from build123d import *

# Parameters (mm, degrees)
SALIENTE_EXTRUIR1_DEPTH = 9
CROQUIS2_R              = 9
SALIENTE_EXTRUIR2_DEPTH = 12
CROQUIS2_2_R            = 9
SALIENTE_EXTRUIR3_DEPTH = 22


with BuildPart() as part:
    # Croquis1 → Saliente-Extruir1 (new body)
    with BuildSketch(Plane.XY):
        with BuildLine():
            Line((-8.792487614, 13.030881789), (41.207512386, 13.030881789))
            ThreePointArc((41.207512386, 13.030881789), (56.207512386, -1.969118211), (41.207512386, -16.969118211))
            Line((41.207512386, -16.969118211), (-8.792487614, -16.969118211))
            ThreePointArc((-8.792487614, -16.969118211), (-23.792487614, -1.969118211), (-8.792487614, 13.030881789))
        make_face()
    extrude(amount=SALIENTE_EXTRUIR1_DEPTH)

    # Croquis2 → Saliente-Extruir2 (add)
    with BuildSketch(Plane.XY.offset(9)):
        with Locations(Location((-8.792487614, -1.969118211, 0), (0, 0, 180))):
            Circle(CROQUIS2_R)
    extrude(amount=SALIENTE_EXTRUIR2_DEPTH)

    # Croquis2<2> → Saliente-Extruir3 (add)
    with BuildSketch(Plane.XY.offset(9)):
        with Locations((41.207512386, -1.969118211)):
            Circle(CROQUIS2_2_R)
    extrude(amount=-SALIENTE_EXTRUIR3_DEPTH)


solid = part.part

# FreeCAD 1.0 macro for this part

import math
import FreeCAD as App
import Part
import Sketcher

V = App.Vector

doc = App.newDocument("Part")
body = doc.addObject("PartDesign::Body", "Body")

sketch1 = body.newObject("Sketcher::SketchObject", "Sketch")
sketch1.AttachmentSupport = (doc.getObject("XY_Plane"), [""])
sketch1.MapMode = "FlatFace"
sketch1.addGeometry(Part.LineSegment(V(41.207512, 13.030882, 0), V(-8.792488, 13.030882, 0)), False)
sketch1.addGeometry(Part.ArcOfCircle(Part.Circle(V(-8.792488, -1.969118, 0), V(0, 0, 1), 15), math.radians(90), math.radians(270)), False)
sketch1.addGeometry(Part.LineSegment(V(-8.792488, -16.969118, 0), V(41.207512, -16.969118, 0)), False)
sketch1.addGeometry(Part.ArcOfCircle(Part.Circle(V(41.207512, -1.969118, 0), V(0, 0, 1), 15), math.radians(-90), math.radians(90)), False)
sketch1.addConstraint(Sketcher.Constraint("Tangent", 0, 2, 1, 1))
sketch1.addConstraint(Sketcher.Constraint("Tangent", 1, 2, 2, 1))
sketch1.addConstraint(Sketcher.Constraint("Tangent", 2, 2, 3, 1))
sketch1.addConstraint(Sketcher.Constraint("Tangent", 3, 2, 0, 1))
sketch1.addConstraint(Sketcher.Constraint("Horizontal", 0))
sketch1.addConstraint(Sketcher.Constraint("Horizontal", 2))
sketch1.addConstraint(Sketcher.Constraint("Radius", 1, 15.0))
sketch1.addConstraint(Sketcher.Constraint("DistanceX", 0, 2, 0, 1, 50.0))
sketch1.addConstraint(Sketcher.Constraint("DistanceY", 1, 3, -1, 1, 1.969118))
sketch1.addConstraint(Sketcher.Constraint("DistanceX", 1, 3, -1, 1, 8.792488))
pad1 = body.newObject("PartDesign::Pad", "Pad")
pad1.Profile = sketch1
pad1.Length = 9

sketch2 = body.newObject("Sketcher::SketchObject", "Sketch001")
sketch2.AttachmentSupport = (doc.getObject("XY_Plane"), [""])
sketch2.MapMode = "FlatFace"
sketch2.AttachmentOffset = App.Placement(V(0, 0, 9), App.Rotation())
sketch2.addGeometry(Part.Circle(V(-8.792488, -1.969118, 0), V(0, 0, 1), 9), False)
sketch2.addConstraint(Sketcher.Constraint("Diameter", 0, 18.0))
sketch2.addConstraint(Sketcher.Constraint("DistanceY", 0, 3, -1, 1, 1.969118))
sketch2.addConstraint(Sketcher.Constraint("DistanceX", 0, 3, -1, 1, 8.792488))
pad2 = body.newObject("PartDesign::Pad", "Pad001")
pad2.Profile = sketch2
pad2.Length = 12

sketch3 = body.newObject("Sketcher::SketchObject", "Sketch002")
sketch3.AttachmentSupport = (doc.getObject("XY_Plane"), [""])
sketch3.MapMode = "FlatFace"
sketch3.AttachmentOffset = App.Placement(V(0, 0, 9), App.Rotation())
sketch3.addGeometry(Part.Circle(V(41.207512, -1.969118, 0), V(0, 0, 1), 9), False)
sketch3.addConstraint(Sketcher.Constraint("Diameter", 0, 18.0))
sketch3.addConstraint(Sketcher.Constraint("DistanceY", 0, 3, -1, 1, 1.969118))
sketch3.addConstraint(Sketcher.Constraint("DistanceX", -1, 1, 0, 3, 41.207512))
pad3 = body.newObject("PartDesign::Pad", "Pad002")
pad3.Profile = sketch3
pad3.Length = 22
pad3.Reversed = True

doc.recompute()
